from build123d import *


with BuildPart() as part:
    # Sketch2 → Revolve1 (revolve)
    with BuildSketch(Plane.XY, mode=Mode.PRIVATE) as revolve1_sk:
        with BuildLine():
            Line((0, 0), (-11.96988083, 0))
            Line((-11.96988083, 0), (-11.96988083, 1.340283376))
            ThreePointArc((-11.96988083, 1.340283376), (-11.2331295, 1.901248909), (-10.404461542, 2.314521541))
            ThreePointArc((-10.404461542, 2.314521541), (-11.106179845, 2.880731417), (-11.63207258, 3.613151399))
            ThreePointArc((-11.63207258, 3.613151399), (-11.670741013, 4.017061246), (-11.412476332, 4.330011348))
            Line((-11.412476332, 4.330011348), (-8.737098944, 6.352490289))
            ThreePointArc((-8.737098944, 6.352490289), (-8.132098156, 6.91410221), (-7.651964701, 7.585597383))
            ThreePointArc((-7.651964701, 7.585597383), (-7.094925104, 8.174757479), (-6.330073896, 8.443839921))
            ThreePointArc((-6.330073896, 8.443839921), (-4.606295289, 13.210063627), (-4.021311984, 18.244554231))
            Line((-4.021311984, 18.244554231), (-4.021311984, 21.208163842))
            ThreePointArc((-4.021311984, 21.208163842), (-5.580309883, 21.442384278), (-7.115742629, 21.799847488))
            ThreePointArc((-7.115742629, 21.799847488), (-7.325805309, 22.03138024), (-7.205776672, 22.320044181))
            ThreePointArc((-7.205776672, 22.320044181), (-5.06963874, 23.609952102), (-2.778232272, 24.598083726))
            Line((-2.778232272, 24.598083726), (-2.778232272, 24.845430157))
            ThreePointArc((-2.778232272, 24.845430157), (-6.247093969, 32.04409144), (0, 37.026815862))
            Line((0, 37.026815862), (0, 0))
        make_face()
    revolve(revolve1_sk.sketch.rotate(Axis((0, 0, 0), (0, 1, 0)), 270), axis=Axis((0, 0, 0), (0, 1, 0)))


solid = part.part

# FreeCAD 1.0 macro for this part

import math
import FreeCAD as App
import Part
import Sketcher
from FreeCAD import Vector

doc = App.newDocument("Part")
body = doc.addObject("PartDesign::Body", "Body")

# Sketch on XY plane
sketch1 = body.newObject("Sketcher::SketchObject", "Sketch")
sketch1.AttachmentSupport = (doc.getObject("XY_Plane"), [""])
sketch1.MapMode = "FlatFace"
sketch1.addGeometry(Part.LineSegment(Vector(-11.97, 0, 0), Vector(0, 0, 0)), False)
sketch1.addGeometry(Part.LineSegment(Vector(0, 0, 0), Vector(0, 37.03, 0)), False)
sketch1.addGeometry(Part.ArcOfCircle(Part.Circle(Vector(0, 30.62, 0), Vector(0, 0, 1), 6.41), math.radians(90), math.radians(244)), False)
sketch1.addGeometry(Part.LineSegment(Vector(-2.78, 24.85, 0), Vector(-2.78, 24.6, 0)), False)
sketch1.addGeometry(Part.ArcOfCircle(Part.Circle(Vector(3.32, 7.29, 0), Vector(0, 0, 1), 18.35), math.radians(109.43), math.radians(125.02)), False)
sketch1.addGeometry(Part.ArcOfCircle(Part.Circle(Vector(-7.04, 22.08, 0), Vector(0, 0, 1), 0.29), math.radians(125), math.radians(255)), False)
sketch1.addGeometry(Part.ArcOfCircle(Part.Circle(Vector(-1.86, 40.9, 0), Vector(0, 0, 1), 19.81), math.radians(-105.39), math.radians(-96.26)), False)
sketch1.addGeometry(Part.LineSegment(Vector(-4.02, 21.21, 0), Vector(-4.02, 18.24, 0)), False)
sketch1.addGeometry(Part.ArcOfCircle(Part.Circle(Vector(-25.98, 18.24, 0), Vector(0, 0, 1), 21.96), math.radians(-27), math.radians(0)), False)
sketch1.addGeometry(Part.ArcOfCircle(Part.Circle(Vector(-6.16, 6.73, 0), Vector(0, 0, 1), 1.72), math.radians(96), math.radians(150)), False)
sketch1.addGeometry(Part.ArcOfCircle(Part.Circle(Vector(-11.21, 9.62, 0), Vector(0, 0, 1), 4.1), math.radians(-53), math.radians(-30)), False)
sketch1.addGeometry(Part.LineSegment(Vector(-8.74, 6.35, 0), Vector(-11.41, 4.33, 0)), False)
sketch1.addGeometry(Part.ArcOfCircle(Part.Circle(Vector(-11.16, 3.86, 0), Vector(0, 0, 1), 0.53), math.radians(118), math.radians(208)), False)
sketch1.addGeometry(Part.ArcOfCircle(Part.Circle(Vector(-8.66, 5.19, 0), Vector(0, 0, 1), 3.36), math.radians(-152), math.radians(-121)), False)
sketch1.addGeometry(Part.ArcOfCircle(Part.Circle(Vector(-8.63, -2.28, 0), Vector(0, 0, 1), 4.93), math.radians(111), math.radians(133)), False)
sketch1.addGeometry(Part.LineSegment(Vector(-11.97, 1.34, 0), Vector(-11.97, 0, 0)), False)
sketch1.addConstraint(Sketcher.Constraint("Coincident", 0, 2, 1, 1))
sketch1.addConstraint(Sketcher.Constraint("Coincident", 1, 2, 2, 1))
sketch1.addConstraint(Sketcher.Constraint("Coincident", 2, 2, 3, 1))
sketch1.addConstraint(Sketcher.Constraint("Coincident", 3, 2, 4, 1))
sketch1.addConstraint(Sketcher.Constraint("Tangent", 4, 2, 5, 1))
sketch1.addConstraint(Sketcher.Constraint("Tangent", 5, 2, 6, 1))
sketch1.addConstraint(Sketcher.Constraint("Coincident", 6, 2, 7, 1))
sketch1.addConstraint(Sketcher.Constraint("Tangent", 7, 2, 8, 2))
sketch1.addConstraint(Sketcher.Constraint("Coincident", 8, 1, 9, 1))
sketch1.addConstraint(Sketcher.Constraint("Tangent", 9, 2, 10, 2))
sketch1.addConstraint(Sketcher.Constraint("Tangent", 10, 1, 11, 1))
sketch1.addConstraint(Sketcher.Constraint("Coincident", 11, 2, 12, 1))
sketch1.addConstraint(Sketcher.Constraint("Tangent", 12, 2, 13, 1))
sketch1.addConstraint(Sketcher.Constraint("Coincident", 13, 2, 14, 1))
sketch1.addConstraint(Sketcher.Constraint("Coincident", 14, 2, 15, 1))
sketch1.addConstraint(Sketcher.Constraint("Coincident", 15, 2, 0, 1))
sketch1.addConstraint(Sketcher.Constraint("Horizontal", 0))
sketch1.addConstraint(Sketcher.Constraint("Vertical", 1))
sketch1.addConstraint(Sketcher.Constraint("Vertical", 3))
sketch1.addConstraint(Sketcher.Constraint("Vertical", 7))
sketch1.addConstraint(Sketcher.Constraint("Vertical", 15))
sketch1.addConstraint(Sketcher.Constraint("Coincident", 0, 2, -1, 1))
sketch1.addConstraint(Sketcher.Constraint("PointOnObject", 2, 3, -2))
sketch1.addConstraint(Sketcher.Constraint("Radius", 2, 6.407511))
sketch1.addConstraint(Sketcher.Constraint("Radius", 8, 21.95644))
sketch1.addConstraint(Sketcher.Constraint("Radius", 10, 4.096841))
sketch1.addConstraint(Sketcher.Constraint("Radius", 13, 3.360189))
sketch1.addConstraint(Sketcher.Constraint("Radius", 4, 18.348132))
sketch1.addConstraint(Sketcher.Constraint("Radius", 5, 0.291743))
sketch1.addConstraint(Sketcher.Constraint("Radius", 6, 19.807324))
sketch1.addConstraint(Sketcher.Constraint("Radius", 9, 1.722654))
sketch1.addConstraint(Sketcher.Constraint("Radius", 12, 0.530147))
sketch1.addConstraint(Sketcher.Constraint("Radius", 14, 4.929225))
sketch1.addConstraint(Sketcher.Constraint("DistanceX", 13, 3, 5, 3, 1.626001))
sketch1.addConstraint(Sketcher.Constraint("DistanceX", 0, 1, 0, 2, 11.969881))
sketch1.addConstraint(Sketcher.Constraint("DistanceY", 7, 2, 7, 1, 2.96361))
sketch1.addConstraint(Sketcher.Constraint("DistanceX", 10, 1, -1, 1, 8.737099))
sketch1.addConstraint(Sketcher.Constraint("DistanceY", 4, 3, 2, 3, 23.324599))
sketch1.addConstraint(Sketcher.Constraint("DistanceX", 8, 3, 10, 3, 14.770099))
sketch1.addConstraint(Sketcher.Constraint("DistanceY", 14, 2, 12, 3, 2.5215))
sketch1.addConstraint(Sketcher.Constraint("DistanceY", 1, 1, 1, 2, 37.026816))
sketch1.addConstraint(Sketcher.Constraint("DistanceY", 3, 2, 3, 1, 0.247346))
sketch1.addConstraint(Sketcher.Constraint("DistanceY", 15, 2, 15, 1, 1.340283))
sketch1.addConstraint(Sketcher.Constraint("DistanceX", 6, 3, -1, 1, 1.860359))
sketch1.addConstraint(Sketcher.Constraint("DistanceX", 8, 3, -1, 1, 25.977751))
sketch1.addConstraint(Sketcher.Constraint("DistanceY", -1, 1, 10, 3, 9.62059))
sketch1.addConstraint(Sketcher.Constraint("DistanceY", -1, 1, 2, 2, 24.84543))
sketch1.addConstraint(Sketcher.Constraint("DistanceY", -1, 1, 8, 1, 8.44384))
sketch1.addConstraint(Sketcher.Constraint("DistanceY", -1, 1, 11, 2, 4.330011))
sketch1.addConstraint(Sketcher.Constraint("DistanceY", -1, 1, 12, 2, 3.613151))
sketch1.addConstraint(Sketcher.Constraint("DistanceX", 13, 2, -1, 1, 10.404462))
revolution = body.newObject("PartDesign::Revolution", "Revolution")
revolution.Profile = sketch1
revolution.ReferenceAxis = (sketch1, ["V_Axis"])
revolution.Angle = 360

doc.recompute()
